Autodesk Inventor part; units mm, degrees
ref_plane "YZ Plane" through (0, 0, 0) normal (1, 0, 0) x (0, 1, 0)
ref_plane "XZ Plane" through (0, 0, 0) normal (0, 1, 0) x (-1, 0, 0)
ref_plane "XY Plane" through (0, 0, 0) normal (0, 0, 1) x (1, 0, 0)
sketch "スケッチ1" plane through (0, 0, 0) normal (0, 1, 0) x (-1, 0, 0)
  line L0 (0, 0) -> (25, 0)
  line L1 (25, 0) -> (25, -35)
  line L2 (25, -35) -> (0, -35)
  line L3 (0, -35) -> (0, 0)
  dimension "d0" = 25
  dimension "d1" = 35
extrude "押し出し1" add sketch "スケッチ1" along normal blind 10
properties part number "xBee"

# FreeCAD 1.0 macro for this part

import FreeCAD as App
import Part
import Sketcher

doc = App.newDocument("Part")
params = doc.addObject("Spreadsheet::Sheet", "Params")
for row, (alias, value) in enumerate([
    ("sketch1_width", "25 mm"),
    ("sketch1_height", "35 mm"),
    ("pad1_length", "10 mm"),
], start=1):
    params.set(f"A{row}", alias)
    params.set(f"B{row}", "=" + value)
    params.setAlias(f"B{row}", alias)

body = doc.addObject("PartDesign::Body", "Body")

sketch1 = body.newObject("Sketcher::SketchObject", "Sketch")
sketch1.AttachmentSupport = (doc.getObject("XZ_Plane"), [""])
sketch1.MapMode = "FlatFace"
sketch1.addGeometry([
    Part.LineSegment(App.Vector(-25, 0, 0), App.Vector(0, 0, 0)),
    Part.LineSegment(App.Vector(0, 0, 0), App.Vector(0, -35, 0)),
    Part.LineSegment(App.Vector(0, -35, 0), App.Vector(-25, -35, 0)),
    Part.LineSegment(App.Vector(-25, -35, 0), App.Vector(-25, 0, 0)),
], False)
sketch1.addConstraint([
    Sketcher.Constraint("Coincident", 0, 2, 1, 1),
    Sketcher.Constraint("Coincident", 1, 2, 2, 1),
    Sketcher.Constraint("Coincident", 2, 2, 3, 1),
    Sketcher.Constraint("Coincident", 3, 2, 0, 1),
    Sketcher.Constraint("Horizontal", 0),
    Sketcher.Constraint("Vertical", 1),
    Sketcher.Constraint("Horizontal", 2),
    Sketcher.Constraint("Vertical", 3),
    Sketcher.Constraint("Coincident", 0, 2, -1, 1),
    Sketcher.Constraint("DistanceX", 0, 1, 0, 2, 25.0),
    Sketcher.Constraint("DistanceY", 1, 2, 1, 1, 35.0),
])
sketch1.setExpression("Constraints[9]", "Params.sketch1_width")
sketch1.setExpression("Constraints[10]", "Params.sketch1_height")
pad1 = body.newObject("PartDesign::Pad", "Pad")
pad1.Profile = sketch1
pad1.setExpression("Length", "Params.pad1_length")
pad1.Reversed = True

doc.recompute()
